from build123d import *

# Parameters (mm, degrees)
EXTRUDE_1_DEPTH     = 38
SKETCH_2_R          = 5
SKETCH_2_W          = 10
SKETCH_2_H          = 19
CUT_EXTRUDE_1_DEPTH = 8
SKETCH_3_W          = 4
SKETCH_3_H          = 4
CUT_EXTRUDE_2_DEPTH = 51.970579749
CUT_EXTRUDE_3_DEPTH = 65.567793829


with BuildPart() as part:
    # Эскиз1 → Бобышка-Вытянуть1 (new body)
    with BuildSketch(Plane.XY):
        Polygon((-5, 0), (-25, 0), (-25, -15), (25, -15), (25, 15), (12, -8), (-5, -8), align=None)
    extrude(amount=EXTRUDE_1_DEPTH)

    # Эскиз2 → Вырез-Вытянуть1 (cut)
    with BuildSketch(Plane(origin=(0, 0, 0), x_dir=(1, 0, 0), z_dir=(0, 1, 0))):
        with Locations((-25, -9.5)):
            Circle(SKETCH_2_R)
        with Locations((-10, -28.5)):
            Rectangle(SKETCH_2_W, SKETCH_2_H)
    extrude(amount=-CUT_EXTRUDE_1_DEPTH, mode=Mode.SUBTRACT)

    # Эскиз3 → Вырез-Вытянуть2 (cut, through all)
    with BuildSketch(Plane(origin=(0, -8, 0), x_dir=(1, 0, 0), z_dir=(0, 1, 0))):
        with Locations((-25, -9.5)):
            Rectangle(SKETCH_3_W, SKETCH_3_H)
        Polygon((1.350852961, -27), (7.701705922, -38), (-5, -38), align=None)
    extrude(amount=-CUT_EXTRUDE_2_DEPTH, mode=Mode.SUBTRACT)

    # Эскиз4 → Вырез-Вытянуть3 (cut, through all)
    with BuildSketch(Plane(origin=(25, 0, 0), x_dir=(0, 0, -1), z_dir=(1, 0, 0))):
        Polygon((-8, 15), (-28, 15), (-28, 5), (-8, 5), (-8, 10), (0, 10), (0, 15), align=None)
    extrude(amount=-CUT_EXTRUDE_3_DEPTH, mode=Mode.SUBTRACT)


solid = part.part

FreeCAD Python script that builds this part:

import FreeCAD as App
import Part
import Sketcher
Q = App.Units.Quantity

doc = App.newDocument("Part")
params = doc.addObject("Spreadsheet::Sheet", "Params")
for row, (alias, value) in enumerate([
    ("sketch1_width", "20 mm"),
    ("sketch1_width2", "50 mm"),
    ("sketch1_width3", "17 mm"),
    ("sketch1_height", "15 mm"),
    ("sketch1_height2", "8 mm"),
    ("pad1_length", "38 mm"),
    ("sketch2_diameter", "10 mm"),
    ("sketch2_width", "10 mm"),
    ("sketch2_height", "19 mm"),
    ("pocket1_length", "8 mm"),
    ("sketch3_width", "4 mm"),
    ("sketch4_width", "10 mm"),
    ("sketch4_height", "20 mm"),
    ("sketch4_height2", "8 mm"),
], start=1):
    params.set(f"A{row}", alias)
    params.set(f"B{row}", "=" + value)
    params.setAlias(f"B{row}", alias)

body = doc.addObject("PartDesign::Body", "Body")

sketch1 = body.newObject("Sketcher::SketchObject", "Sketch")
sketch1.AttachmentSupport = (doc.getObject("XY_Plane"), [""])
sketch1.MapMode = "FlatFace"
sketch1.addGeometry(Part.LineSegment(App.Vector(-5, 0, 0), App.Vector(-25, 0, 0)), False)
sketch1.addGeometry(Part.LineSegment(App.Vector(-25, 0, 0), App.Vector(-25, -15, 0)), False)
sketch1.addGeometry(Part.LineSegment(App.Vector(-25, -15, 0), App.Vector(25, -15, 0)), False)
sketch1.addGeometry(Part.LineSegment(App.Vector(25, -15, 0), App.Vector(25, 15, 0)), False)
sketch1.addGeometry(Part.LineSegment(App.Vector(25, 15, 0), App.Vector(12, -8, 0)), False)
sketch1.addGeometry(Part.LineSegment(App.Vector(12, -8, 0), App.Vector(-5, -8, 0)), False)
sketch1.addGeometry(Part.LineSegment(App.Vector(-5, -8, 0), App.Vector(-5, 0, 0)), False)
sketch1.addConstraint(Sketcher.Constraint("Coincident", 0, 2, 1, 1))
sketch1.addConstraint(Sketcher.Constraint("Coincident", 1, 2, 2, 1))
sketch1.addConstraint(Sketcher.Constraint("Coincident", 2, 2, 3, 1))
sketch1.addConstraint(Sketcher.Constraint("Coincident", 3, 2, 4, 1))
sketch1.addConstraint(Sketcher.Constraint("Coincident", 4, 2, 5, 1))
sketch1.addConstraint(Sketcher.Constraint("Coincident", 5, 2, 6, 1))
sketch1.addConstraint(Sketcher.Constraint("Coincident", 6, 2, 0, 1))
sketch1.addConstraint(Sketcher.Constraint("Horizontal", 0))
sketch1.addConstraint(Sketcher.Constraint("Vertical", 1))
sketch1.addConstraint(Sketcher.Constraint("Horizontal", 2))
sketch1.addConstraint(Sketcher.Constraint("Vertical", 3))
sketch1.addConstraint(Sketcher.Constraint("Horizontal", 5))
sketch1.addConstraint(Sketcher.Constraint("Vertical", 6))
sketch1.addConstraint(Sketcher.Constraint("Symmetric", 1, 2, 3, 2, -1, 1))
sketch1.addConstraint(Sketcher.Constraint("PointOnObject", 0, 2, -1))
sketch1.addConstraint(Sketcher.Constraint("DistanceX", 0, 2, 0, 1, 20.0))
sketch1.addConstraint(Sketcher.Constraint("DistanceX", 2, 1, 2, 2, 50.0))
sketch1.addConstraint(Sketcher.Constraint("DistanceX", 5, 2, 5, 1, 17.0))
sketch1.addConstraint(Sketcher.Constraint("DistanceY", 1, 2, 1, 1, 15.0))
sketch1.addConstraint(Sketcher.Constraint("DistanceY", 6, 1, 6, 2, 8.0))
sketch1.setExpression("Constraints[15]", "Params.sketch1_width")
sketch1.setExpression("Constraints[16]", "Params.sketch1_width2")
sketch1.setExpression("Constraints[17]", "Params.sketch1_width3")
sketch1.setExpression("Constraints[18]", "Params.sketch1_height")
sketch1.setExpression("Constraints[19]", "Params.sketch1_height2")
pad1 = body.newObject("PartDesign::Pad", "Pad")
pad1.Profile = sketch1
pad1.setExpression("Length", "Params.pad1_length")

sketch2 = body.newObject("Sketcher::SketchObject", "Sketch001")
sketch2.AttachmentSupport = (doc.getObject("XZ_Plane"), [""])
sketch2.MapMode = "FlatFace"
sketch2.addGeometry(Part.Circle(App.Vector(-25, 9.5, 0), App.Vector(0, 0, 1), 5), False)
sketch2.addGeometry(Part.LineSegment(App.Vector(-15, 19, 0), App.Vector(-15, 38, 0)), False)
sketch2.addGeometry(Part.LineSegment(App.Vector(-15, 38, 0), App.Vector(-5, 38, 0)), False)
sketch2.addGeometry(Part.LineSegment(App.Vector(-5, 38, 0), App.Vector(-5, 19, 0)), False)
sketch2.addGeometry(Part.LineSegment(App.Vector(-5, 19, 0), App.Vector(-15, 19, 0)), False)
sketch2.addConstraint(Sketcher.Constraint("Coincident", 1, 2, 2, 1))
sketch2.addConstraint(Sketcher.Constraint("Coincident", 2, 2, 3, 1))
sketch2.addConstraint(Sketcher.Constraint("Coincident", 3, 2, 4, 1))
sketch2.addConstraint(Sketcher.Constraint("Coincident", 4, 2, 1, 1))
sketch2.addConstraint(Sketcher.Constraint("Vertical", 1))
sketch2.addConstraint(Sketcher.Constraint("Horizontal", 2))
sketch2.addConstraint(Sketcher.Constraint("Vertical", 3))
sketch2.addConstraint(Sketcher.Constraint("Horizontal", 4))
sketch2.addConstraint(Sketcher.Constraint("Diameter", 0, 10.0))
sketch2.addConstraint(Sketcher.Constraint("DistanceX", 2, 1, 2, 2, 10.0))
sketch2.addConstraint(Sketcher.Constraint("DistanceY", 1, 1, 1, 2, 19.0))
sketch2.addConstraint(Sketcher.Constraint("DistanceX", 0, 3, -1, 1, 25.0))
sketch2.addConstraint(Sketcher.Constraint("DistanceX", 1, 2, -1, 1, 15.0))
sketch2.addConstraint(Sketcher.Constraint("DistanceY", -1, 1, 1, 2, 38.0))
sketch2.addConstraint(Sketcher.Constraint("DistanceY", -1, 1, 0, 3, 9.5))
sketch2.setExpression("Constraints[8]", "Params.sketch2_diameter")
sketch2.setExpression("Constraints[9]", "Params.sketch2_width")
sketch2.setExpression("Constraints[10]", "Params.sketch2_height")
pocket1 = body.newObject("PartDesign::Pocket", "Pocket")
pocket1.Profile = sketch2
pocket1.setExpression("Length", "Params.pocket1_length")
pocket1.Reversed = True

sketch3 = body.newObject("Sketcher::SketchObject", "Sketch002")
sketch3.AttachmentSupport = (doc.getObject("XZ_Plane"), [""])
sketch3.MapMode = "FlatFace"
sketch3.AttachmentOffset = App.Placement(App.Vector(0, 0, 8), App.Rotation())
sketch3.addGeometry(Part.LineSegment(App.Vector(-27, 7.5, 0), App.Vector(-27, 11.5, 0)), False)
sketch3.addGeometry(Part.LineSegment(App.Vector(-27, 11.5, 0), App.Vector(-23, 11.5, 0)), False)
sketch3.addGeometry(Part.LineSegment(App.Vector(-23, 11.5, 0), App.Vector(-23, 7.5, 0)), False)
sketch3.addGeometry(Part.LineSegment(App.Vector(-23, 7.5, 0), App.Vector(-27, 7.5, 0)), False)
sketch3.addGeometry(Part.LineSegment(App.Vector(7.701706, 38, 0), App.Vector(1.350853, 27, 0)), False)
sketch3.addGeometry(Part.LineSegment(App.Vector(1.350853, 27, 0), App.Vector(-5, 38, 0)), False)
sketch3.addGeometry(Part.LineSegment(App.Vector(-5, 38, 0), App.Vector(7.701706, 38, 0)), False)
sketch3.addConstraint(Sketcher.Constraint("Coincident", 0, 2, 1, 1))
sketch3.addConstraint(Sketcher.Constraint("Coincident", 1, 2, 2, 1))
sketch3.addConstraint(Sketcher.Constraint("Coincident", 2, 2, 3, 1))
sketch3.addConstraint(Sketcher.Constraint("Coincident", 3, 2, 0, 1))
sketch3.addConstraint(Sketcher.Constraint("Coincident", 4, 2, 5, 1))
sketch3.addConstraint(Sketcher.Constraint("Coincident", 5, 2, 6, 1))
sketch3.addConstraint(Sketcher.Constraint("Coincident", 6, 2, 4, 1))
sketch3.addConstraint(Sketcher.Constraint("Vertical", 0))
sketch3.addConstraint(Sketcher.Constraint("Horizontal", 1))
sketch3.addConstraint(Sketcher.Constraint("Vertical", 2))
sketch3.addConstraint(Sketcher.Constraint("Horizontal", 3))
sketch3.addConstraint(Sketcher.Constraint("Horizontal", 6))
sketch3.addConstraint(Sketcher.Constraint("Equal", 3, 0))
sketch3.addConstraint(Sketcher.Constraint("Equal", 4, 5))
sketch3.addConstraint(Sketcher.Constraint("DistanceX", 1, 1, 1, 2, 4.0))
sketch3.addConstraint(Sketcher.Constraint("Angle", 4, Q("-120 deg")))
sketch3.addConstraint(Sketcher.Constraint("DistanceX", 0, 2, -1, 1, 27.0))
sketch3.addConstraint(Sketcher.Constraint("DistanceY", -1, 1, 4, 2, 27.0))
sketch3.addConstraint(Sketcher.Constraint("DistanceX", 5, 2, -1, 1, 5.0))
sketch3.addConstraint(Sketcher.Constraint("DistanceY", -1, 1, 5, 2, 38.0))
sketch3.addConstraint(Sketcher.Constraint("DistanceY", -1, 1, 0, 2, 11.5))
sketch3.setExpression("Constraints[14]", "Params.sketch3_width")
pocket2 = body.newObject("PartDesign::Pocket", "Pocket001")
pocket2.Profile = sketch3
pocket2.Type = "ThroughAll"
pocket2.Reversed = True

sketch4 = body.newObject("Sketcher::SketchObject", "Sketch003")
sketch4.AttachmentSupport = (doc.getObject("YZ_Plane"), [""])
sketch4.MapMode = "FlatFace"
sketch4.AttachmentOffset = App.Placement(App.Vector(0, 0, 25), App.Rotation())
sketch4.addGeometry(Part.LineSegment(App.Vector(15, 28, 0), App.Vector(5, 28, 0)), False)
sketch4.addGeometry(Part.LineSegment(App.Vector(5, 28, 0), App.Vector(5, 8, 0)), False)
sketch4.addGeometry(Part.LineSegment(App.Vector(5, 8, 0), App.Vector(10, 8, 0)), False)
sketch4.addGeometry(Part.LineSegment(App.Vector(10, 8, 0), App.Vector(10, 0, 0)), False)
sketch4.addGeometry(Part.LineSegment(App.Vector(10, 0, 0), App.Vector(15, 0, 0)), False)
sketch4.addGeometry(Part.LineSegment(App.Vector(15, 0, 0), App.Vector(15, 28, 0)), False)
sketch4.addConstraint(Sketcher.Constraint("Coincident", 0, 2, 1, 1))
sketch4.addConstraint(Sketcher.Constraint("Coincident", 1, 2, 2, 1))
sketch4.addConstraint(Sketcher.Constraint("Coincident", 2, 2, 3, 1))
sketch4.addConstraint(Sketcher.Constraint("Coincident", 3, 2, 4, 1))
sketch4.addConstraint(Sketcher.Constraint("Coincident", 4, 2, 5, 1))
sketch4.addConstraint(Sketcher.Constraint("Coincident", 5, 2, 0, 1))
sketch4.addConstraint(Sketcher.Constraint("Horizontal", 0))
sketch4.addConstraint(Sketcher.Constraint("Vertical", 1))
sketch4.addConstraint(Sketcher.Constraint("Horizontal", 2))
sketch4.addConstraint(Sketcher.Constraint("Vertical", 3))
sketch4.addConstraint(Sketcher.Constraint("Horizontal", 4))
sketch4.addConstraint(Sketcher.Constraint("Vertical", 5))
sketch4.addConstraint(Sketcher.Constraint("PointOnObject", 3, 2, -1))
sketch4.addConstraint(Sketcher.Constraint("Equal", 2, 4))
sketch4.addConstraint(Sketcher.Constraint("DistanceX", 0, 2, 0, 1, 10.0))
sketch4.addConstraint(Sketcher.Constraint("DistanceY", 1, 2, 1, 1, 20.0))
sketch4.addConstraint(Sketcher.Constraint("DistanceY", 3, 2, 3, 1, 8.0))
sketch4.addConstraint(Sketcher.Constraint("DistanceX", -1, 1, 0, 2, 5.0))
sketch4.setExpression("Constraints[14]", "Params.sketch4_width")
sketch4.setExpression("Constraints[15]", "Params.sketch4_height")
sketch4.setExpression("Constraints[16]", "Params.sketch4_height2")
pocket3 = body.newObject("PartDesign::Pocket", "Pocket002")
pocket3.Profile = sketch4
pocket3.Type = "ThroughAll"

doc.recompute()
